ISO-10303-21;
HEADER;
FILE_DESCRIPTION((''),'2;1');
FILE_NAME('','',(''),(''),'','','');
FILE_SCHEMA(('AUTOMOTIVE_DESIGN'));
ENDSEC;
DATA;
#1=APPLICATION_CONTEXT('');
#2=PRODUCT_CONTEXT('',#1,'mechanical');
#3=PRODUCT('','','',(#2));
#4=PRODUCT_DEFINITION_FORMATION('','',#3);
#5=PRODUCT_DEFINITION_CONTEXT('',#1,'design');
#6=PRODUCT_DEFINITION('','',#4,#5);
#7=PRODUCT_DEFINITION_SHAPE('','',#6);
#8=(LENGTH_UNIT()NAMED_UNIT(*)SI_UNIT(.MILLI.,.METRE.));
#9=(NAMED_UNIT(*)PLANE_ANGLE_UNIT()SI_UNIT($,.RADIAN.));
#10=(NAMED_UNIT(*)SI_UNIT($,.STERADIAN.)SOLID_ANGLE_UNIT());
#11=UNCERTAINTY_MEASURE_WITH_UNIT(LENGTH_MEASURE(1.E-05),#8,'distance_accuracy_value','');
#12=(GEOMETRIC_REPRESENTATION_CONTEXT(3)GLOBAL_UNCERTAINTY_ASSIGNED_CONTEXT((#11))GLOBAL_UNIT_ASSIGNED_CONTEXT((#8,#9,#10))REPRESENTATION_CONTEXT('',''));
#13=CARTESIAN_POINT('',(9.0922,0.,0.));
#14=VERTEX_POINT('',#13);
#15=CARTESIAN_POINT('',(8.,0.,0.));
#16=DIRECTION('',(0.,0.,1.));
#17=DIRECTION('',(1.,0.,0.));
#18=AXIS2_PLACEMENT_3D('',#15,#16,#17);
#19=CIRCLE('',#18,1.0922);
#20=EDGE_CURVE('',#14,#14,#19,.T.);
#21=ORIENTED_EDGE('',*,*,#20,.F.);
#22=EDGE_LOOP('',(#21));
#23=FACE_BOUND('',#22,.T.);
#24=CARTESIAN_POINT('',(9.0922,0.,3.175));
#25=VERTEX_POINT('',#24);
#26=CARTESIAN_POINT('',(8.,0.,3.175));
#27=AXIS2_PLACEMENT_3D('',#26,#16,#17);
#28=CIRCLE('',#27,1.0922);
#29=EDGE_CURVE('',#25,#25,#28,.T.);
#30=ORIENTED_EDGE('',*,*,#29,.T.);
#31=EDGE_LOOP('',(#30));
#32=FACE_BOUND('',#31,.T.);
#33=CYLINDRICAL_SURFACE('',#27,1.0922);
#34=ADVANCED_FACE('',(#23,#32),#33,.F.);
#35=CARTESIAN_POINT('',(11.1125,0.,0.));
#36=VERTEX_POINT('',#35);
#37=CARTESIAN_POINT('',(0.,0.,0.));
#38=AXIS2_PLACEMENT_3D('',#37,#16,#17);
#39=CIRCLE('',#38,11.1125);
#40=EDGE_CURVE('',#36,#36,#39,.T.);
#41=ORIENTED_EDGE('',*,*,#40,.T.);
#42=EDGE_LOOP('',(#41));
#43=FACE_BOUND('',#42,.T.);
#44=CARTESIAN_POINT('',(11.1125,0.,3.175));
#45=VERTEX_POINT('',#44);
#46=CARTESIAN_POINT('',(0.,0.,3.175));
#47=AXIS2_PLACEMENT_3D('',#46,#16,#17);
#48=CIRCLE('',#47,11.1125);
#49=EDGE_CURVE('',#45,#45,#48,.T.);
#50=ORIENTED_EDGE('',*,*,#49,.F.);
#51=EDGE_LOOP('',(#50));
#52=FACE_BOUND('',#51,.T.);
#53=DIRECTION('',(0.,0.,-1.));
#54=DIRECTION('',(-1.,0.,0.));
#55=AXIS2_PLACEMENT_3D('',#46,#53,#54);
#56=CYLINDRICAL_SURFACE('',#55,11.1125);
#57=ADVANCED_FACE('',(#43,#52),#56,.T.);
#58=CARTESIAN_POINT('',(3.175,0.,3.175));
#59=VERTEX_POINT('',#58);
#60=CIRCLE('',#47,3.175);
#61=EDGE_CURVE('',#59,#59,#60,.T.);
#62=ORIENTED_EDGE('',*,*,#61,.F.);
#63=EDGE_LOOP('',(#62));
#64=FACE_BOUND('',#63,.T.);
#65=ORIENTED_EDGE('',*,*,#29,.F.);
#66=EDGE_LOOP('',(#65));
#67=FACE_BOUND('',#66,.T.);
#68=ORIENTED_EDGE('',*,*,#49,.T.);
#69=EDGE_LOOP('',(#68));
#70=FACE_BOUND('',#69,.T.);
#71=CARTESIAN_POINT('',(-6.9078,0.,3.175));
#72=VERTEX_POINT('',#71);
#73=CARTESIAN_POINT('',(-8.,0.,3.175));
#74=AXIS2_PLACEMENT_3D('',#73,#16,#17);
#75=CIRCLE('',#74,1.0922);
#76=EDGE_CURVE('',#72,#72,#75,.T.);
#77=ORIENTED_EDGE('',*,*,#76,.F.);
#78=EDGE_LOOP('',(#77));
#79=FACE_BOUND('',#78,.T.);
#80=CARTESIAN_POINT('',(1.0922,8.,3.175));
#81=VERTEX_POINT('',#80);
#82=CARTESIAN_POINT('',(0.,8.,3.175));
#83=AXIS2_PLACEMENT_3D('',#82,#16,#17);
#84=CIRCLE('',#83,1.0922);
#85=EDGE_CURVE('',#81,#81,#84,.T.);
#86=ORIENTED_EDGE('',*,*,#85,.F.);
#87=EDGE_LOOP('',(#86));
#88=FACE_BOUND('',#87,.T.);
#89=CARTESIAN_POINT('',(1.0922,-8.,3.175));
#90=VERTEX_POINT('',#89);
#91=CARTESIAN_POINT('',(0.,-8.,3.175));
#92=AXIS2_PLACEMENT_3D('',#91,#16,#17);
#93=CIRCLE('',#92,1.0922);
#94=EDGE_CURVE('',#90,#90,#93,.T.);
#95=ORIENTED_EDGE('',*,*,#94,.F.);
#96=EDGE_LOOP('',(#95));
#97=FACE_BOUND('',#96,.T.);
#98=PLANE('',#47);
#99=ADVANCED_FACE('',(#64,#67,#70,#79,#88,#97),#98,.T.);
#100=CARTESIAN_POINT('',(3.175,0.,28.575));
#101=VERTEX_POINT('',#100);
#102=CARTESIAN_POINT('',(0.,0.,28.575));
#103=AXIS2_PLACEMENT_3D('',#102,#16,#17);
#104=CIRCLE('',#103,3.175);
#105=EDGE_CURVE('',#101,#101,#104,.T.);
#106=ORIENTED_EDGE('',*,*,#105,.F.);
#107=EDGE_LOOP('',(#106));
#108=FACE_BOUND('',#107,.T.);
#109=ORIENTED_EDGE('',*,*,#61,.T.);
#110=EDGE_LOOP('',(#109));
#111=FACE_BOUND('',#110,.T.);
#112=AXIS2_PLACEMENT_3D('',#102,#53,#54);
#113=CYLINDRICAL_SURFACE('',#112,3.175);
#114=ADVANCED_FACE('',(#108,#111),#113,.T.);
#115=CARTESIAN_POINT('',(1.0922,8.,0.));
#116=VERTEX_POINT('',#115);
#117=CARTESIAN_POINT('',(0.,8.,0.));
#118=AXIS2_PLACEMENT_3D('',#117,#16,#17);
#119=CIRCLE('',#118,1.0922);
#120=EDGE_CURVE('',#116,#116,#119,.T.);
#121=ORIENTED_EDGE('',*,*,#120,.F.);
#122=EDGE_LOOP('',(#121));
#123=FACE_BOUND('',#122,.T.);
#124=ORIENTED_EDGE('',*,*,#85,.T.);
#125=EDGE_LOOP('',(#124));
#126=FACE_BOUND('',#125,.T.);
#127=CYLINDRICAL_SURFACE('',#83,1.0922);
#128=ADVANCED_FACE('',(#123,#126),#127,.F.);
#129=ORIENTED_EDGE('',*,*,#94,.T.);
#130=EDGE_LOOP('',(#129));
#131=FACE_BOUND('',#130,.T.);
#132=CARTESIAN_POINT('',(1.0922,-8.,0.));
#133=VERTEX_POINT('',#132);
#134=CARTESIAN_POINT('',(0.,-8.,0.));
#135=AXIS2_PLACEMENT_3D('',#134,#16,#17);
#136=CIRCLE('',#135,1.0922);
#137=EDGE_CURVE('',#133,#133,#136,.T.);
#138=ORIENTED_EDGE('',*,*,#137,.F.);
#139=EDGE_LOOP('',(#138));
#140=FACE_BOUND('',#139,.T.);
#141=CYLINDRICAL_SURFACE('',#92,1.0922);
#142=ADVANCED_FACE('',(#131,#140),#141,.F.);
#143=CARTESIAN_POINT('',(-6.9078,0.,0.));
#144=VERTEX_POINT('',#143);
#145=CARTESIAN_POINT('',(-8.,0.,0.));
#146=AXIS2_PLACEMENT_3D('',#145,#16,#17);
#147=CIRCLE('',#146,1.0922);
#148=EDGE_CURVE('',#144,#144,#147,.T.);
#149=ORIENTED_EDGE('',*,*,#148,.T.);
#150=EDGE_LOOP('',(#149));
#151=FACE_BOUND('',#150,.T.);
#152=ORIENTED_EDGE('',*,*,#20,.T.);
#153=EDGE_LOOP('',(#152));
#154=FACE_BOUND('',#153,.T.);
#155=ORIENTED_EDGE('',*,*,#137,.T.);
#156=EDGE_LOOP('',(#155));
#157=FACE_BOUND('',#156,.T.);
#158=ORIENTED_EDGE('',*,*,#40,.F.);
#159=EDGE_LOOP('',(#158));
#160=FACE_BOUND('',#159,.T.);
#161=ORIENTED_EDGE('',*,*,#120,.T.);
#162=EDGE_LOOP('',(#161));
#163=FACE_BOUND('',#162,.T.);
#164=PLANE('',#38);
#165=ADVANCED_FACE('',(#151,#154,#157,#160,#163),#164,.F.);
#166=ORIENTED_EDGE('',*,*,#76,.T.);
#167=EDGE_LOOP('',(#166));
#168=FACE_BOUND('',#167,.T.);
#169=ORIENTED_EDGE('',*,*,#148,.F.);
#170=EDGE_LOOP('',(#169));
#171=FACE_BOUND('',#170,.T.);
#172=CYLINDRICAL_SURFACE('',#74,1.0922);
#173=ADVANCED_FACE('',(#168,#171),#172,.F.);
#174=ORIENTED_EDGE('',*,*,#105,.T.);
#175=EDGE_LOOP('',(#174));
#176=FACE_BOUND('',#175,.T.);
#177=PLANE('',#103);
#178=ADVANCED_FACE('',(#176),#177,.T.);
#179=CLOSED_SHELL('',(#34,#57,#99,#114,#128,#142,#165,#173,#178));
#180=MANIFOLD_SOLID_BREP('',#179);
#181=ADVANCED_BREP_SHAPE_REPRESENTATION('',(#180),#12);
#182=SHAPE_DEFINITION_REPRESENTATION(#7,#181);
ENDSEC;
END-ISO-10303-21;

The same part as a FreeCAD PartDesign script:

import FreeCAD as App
import Part
import Sketcher
Q = App.Units.Quantity

doc = App.newDocument("Part")
body = doc.addObject("PartDesign::Body", "Body")

sketch1 = body.newObject("Sketcher::SketchObject", "Sketch")
sketch1.AttachmentSupport = (doc.getObject("XY_Plane"), [""])
sketch1.MapMode = "FlatFace"
sketch1.addGeometry(Part.Circle(App.Vector(0, 0, 0), App.Vector(0, 0, 1), 11), False)
sketch1.addConstraint([
    Sketcher.Constraint("Coincident", 0, 3, -1, 1),
    Sketcher.Constraint("Diameter", 0, Q("0.875 in")),
])
pad1 = body.newObject("PartDesign::Pad", "Pad")
pad1.Profile = sketch1
pad1.Length = Q("0.125 in")

sketch2 = body.newObject("Sketcher::SketchObject", "Sketch001")
sketch2.AttachmentSupport = (doc.getObject("XY_Plane"), [""])
sketch2.MapMode = "FlatFace"
sketch2.AttachmentOffset = App.Placement(App.Vector(0, 0, 0.125 * 25.4), App.Rotation())
sketch2.addGeometry(Part.Circle(App.Vector(0, 0, 0), App.Vector(0, 0, 1), 3.2), False)
sketch2.addConstraint([
    Sketcher.Constraint("Coincident", 0, 3, -1, 1),
    Sketcher.Constraint("Diameter", 0, Q("0.25 in")),
])
pad2 = body.newObject("PartDesign::Pad", "Pad001")
pad2.Profile = sketch2
pad2.Length = Q("1 in")

sketch3 = body.newObject("Sketcher::SketchObject", "Sketch002")
sketch3.AttachmentSupport = (doc.getObject("XY_Plane"), [""])
sketch3.MapMode = "FlatFace"
sketch3.AttachmentOffset = App.Placement(App.Vector(0, 0, 0.125 * 25.4), App.Rotation())
sketch3.addGeometry([
    Part.Circle(App.Vector(0, 8, 0), App.Vector(0, 0, 1), 1.1),
    Part.Circle(App.Vector(0, -8, 0), App.Vector(0, 0, 1), 1.1),
    Part.Circle(App.Vector(-8, 0, 0), App.Vector(0, 0, 1), 1.1),
    Part.Circle(App.Vector(8, 0, 0), App.Vector(0, 0, 1), 1.1),
], False)
sketch3.addConstraint([
    Sketcher.Constraint("Equal", 0, 1),
    Sketcher.Constraint("Equal", 1, 2),
    Sketcher.Constraint("Equal", 2, 3),
    Sketcher.Constraint("Symmetric", 0, 3, 1, 3, -1, 1),
    Sketcher.Constraint("Symmetric", 2, 3, 3, 3, -1, 1),
    Sketcher.Constraint("PointOnObject", 0, 3, -2),
    Sketcher.Constraint("PointOnObject", 2, 3, -1),
    Sketcher.Constraint("Diameter", 0, Q("0.086 in")),
    Sketcher.Constraint("DistanceY", -1, 1, 0, 3, 8.0),
    Sketcher.Constraint("DistanceX", 2, 3, -1, 1, 8.0),
])
doc.recompute()
hole = body.newObject("PartDesign::Hole", "Hole")
hole.Profile = sketch3
hole.ThreadType = "None"
hole.Diameter = Q("0.086 in")
hole.DepthType = "ThroughAll"

doc.recompute()
